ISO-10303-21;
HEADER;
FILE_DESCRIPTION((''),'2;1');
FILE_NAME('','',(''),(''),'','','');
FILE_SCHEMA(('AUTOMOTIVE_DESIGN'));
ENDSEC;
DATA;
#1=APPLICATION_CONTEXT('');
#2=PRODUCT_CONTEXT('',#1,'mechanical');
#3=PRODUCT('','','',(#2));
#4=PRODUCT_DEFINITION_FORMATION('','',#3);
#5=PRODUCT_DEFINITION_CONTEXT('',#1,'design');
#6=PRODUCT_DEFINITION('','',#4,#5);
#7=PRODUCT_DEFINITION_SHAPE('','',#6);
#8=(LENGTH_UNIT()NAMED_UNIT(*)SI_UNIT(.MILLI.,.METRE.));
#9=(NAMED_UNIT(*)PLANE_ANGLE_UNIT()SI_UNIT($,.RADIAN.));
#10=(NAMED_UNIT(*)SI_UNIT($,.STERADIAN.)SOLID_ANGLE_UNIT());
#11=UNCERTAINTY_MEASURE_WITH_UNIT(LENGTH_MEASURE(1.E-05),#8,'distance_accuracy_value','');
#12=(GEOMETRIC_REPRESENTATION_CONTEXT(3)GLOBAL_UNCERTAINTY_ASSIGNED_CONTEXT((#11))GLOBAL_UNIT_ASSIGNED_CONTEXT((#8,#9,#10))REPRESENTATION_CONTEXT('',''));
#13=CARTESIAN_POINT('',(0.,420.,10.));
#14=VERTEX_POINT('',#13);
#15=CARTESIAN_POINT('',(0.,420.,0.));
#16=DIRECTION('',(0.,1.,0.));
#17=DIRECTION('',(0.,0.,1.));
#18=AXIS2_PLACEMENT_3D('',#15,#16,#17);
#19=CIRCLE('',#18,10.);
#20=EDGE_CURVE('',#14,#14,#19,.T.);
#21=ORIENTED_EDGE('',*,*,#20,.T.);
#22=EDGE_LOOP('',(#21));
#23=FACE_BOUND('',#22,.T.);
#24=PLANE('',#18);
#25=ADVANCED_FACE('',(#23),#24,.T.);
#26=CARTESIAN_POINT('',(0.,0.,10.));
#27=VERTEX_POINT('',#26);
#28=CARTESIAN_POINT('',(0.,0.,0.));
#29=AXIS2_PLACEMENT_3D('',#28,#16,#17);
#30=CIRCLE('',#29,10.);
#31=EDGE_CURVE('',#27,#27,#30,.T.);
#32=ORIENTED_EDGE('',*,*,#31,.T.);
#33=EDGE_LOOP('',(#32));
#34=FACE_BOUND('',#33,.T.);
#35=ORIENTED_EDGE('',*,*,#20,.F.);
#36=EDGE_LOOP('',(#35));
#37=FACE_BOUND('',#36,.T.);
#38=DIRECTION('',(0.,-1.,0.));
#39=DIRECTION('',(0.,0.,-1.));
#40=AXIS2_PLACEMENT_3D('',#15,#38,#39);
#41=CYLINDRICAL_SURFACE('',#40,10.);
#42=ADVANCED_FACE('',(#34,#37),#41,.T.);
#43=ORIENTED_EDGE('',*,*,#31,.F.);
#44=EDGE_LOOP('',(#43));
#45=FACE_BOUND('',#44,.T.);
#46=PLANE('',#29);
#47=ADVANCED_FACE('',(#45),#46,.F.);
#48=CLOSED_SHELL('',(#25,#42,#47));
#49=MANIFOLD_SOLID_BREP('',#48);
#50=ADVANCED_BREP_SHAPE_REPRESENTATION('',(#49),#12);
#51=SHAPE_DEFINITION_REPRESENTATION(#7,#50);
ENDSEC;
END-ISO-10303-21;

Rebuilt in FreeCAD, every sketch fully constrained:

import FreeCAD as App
import Part
import Sketcher

V = App.Vector
Q = App.Units.Quantity

doc = App.newDocument("Part")
body = doc.addObject("PartDesign::Body", "Body")

sketch1 = doc.addObject("Sketcher::SketchObject", "Sketch")
body.addObject(sketch1)
sketch1.AttachmentSupport = (doc.XZ_Plane, [""])
sketch1.MapMode = "FlatFace"
sketch1.addGeometry(Part.Circle(V(0, 0, 0), V(0, 0, 1), 10), False)
sketch1.addConstraint(Sketcher.Constraint("Coincident", 0, 3, -1, 1))
sketch1.addConstraint(Sketcher.Constraint("Diameter", 0, Q("20 mm")))
pad1 = doc.addObject("PartDesign::Pad", "Pad")
body.addObject(pad1)
pad1.Profile = sketch1
pad1.Length = 420
pad1.Reversed = True

doc.recompute()
